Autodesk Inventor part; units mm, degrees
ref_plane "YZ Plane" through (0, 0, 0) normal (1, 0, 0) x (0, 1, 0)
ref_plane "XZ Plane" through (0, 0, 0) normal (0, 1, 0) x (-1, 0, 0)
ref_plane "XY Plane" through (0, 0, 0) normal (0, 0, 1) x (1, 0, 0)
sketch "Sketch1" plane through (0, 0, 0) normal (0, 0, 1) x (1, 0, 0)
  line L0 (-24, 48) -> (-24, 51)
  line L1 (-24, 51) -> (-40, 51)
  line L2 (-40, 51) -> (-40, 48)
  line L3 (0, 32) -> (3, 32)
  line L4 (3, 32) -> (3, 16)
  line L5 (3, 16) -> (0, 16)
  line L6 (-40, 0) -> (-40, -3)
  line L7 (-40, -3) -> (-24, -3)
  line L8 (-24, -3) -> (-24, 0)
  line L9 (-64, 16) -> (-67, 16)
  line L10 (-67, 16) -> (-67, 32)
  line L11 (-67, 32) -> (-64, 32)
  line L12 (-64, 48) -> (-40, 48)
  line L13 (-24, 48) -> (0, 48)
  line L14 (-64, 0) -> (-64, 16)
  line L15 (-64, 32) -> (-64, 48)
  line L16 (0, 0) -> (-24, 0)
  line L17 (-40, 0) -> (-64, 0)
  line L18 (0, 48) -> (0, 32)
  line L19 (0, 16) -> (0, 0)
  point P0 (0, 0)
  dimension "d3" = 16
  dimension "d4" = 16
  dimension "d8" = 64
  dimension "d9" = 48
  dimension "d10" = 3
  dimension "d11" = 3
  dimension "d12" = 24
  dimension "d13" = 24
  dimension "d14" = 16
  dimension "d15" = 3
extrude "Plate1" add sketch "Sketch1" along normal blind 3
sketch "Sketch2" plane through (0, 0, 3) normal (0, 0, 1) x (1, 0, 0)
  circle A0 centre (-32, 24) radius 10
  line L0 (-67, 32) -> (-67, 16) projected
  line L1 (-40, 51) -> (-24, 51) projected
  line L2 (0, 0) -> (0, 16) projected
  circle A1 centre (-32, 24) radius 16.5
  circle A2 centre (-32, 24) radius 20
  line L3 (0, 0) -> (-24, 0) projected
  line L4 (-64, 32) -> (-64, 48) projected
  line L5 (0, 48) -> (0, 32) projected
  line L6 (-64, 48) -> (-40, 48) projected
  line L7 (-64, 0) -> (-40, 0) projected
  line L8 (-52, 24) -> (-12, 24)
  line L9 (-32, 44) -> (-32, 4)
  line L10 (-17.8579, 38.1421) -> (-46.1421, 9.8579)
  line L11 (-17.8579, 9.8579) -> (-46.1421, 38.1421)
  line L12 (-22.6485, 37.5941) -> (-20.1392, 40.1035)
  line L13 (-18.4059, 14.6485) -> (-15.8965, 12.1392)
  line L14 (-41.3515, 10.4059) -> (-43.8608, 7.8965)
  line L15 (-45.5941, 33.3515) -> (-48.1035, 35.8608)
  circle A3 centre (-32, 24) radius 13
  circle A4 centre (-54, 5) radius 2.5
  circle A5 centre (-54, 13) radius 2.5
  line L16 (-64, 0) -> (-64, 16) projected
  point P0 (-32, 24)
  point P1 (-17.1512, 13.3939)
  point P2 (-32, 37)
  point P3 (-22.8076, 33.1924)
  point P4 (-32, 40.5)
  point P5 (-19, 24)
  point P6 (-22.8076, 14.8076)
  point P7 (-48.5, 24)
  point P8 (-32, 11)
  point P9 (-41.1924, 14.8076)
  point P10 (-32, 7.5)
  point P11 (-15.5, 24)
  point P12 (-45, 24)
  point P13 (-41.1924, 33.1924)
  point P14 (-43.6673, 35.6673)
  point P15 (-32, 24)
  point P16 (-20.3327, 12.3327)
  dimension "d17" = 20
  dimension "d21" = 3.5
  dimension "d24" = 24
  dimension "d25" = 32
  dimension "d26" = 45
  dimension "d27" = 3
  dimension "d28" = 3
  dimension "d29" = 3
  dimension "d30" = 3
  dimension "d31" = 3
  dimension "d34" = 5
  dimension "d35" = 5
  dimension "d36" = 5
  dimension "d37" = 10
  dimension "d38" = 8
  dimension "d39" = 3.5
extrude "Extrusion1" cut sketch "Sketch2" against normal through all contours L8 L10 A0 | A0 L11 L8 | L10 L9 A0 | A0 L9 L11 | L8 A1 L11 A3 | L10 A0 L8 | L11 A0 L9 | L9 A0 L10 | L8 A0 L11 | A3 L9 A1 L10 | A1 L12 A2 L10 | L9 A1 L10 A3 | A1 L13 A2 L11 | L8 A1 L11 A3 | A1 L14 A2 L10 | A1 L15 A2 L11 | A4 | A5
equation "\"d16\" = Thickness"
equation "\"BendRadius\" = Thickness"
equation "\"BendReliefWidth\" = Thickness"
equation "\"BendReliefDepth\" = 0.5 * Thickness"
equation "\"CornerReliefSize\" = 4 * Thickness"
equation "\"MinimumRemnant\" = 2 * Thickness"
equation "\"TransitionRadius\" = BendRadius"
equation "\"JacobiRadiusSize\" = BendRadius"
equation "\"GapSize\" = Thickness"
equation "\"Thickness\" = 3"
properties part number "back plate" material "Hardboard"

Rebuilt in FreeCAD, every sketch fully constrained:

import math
import FreeCAD as App
import Part
import Sketcher
from FreeCAD import Vector
Q = App.Units.Quantity


def add_polygon(sketch, points):
    """Adds a closed chain of lines whose ends are joined by coincident constraints."""
    first, n = sketch.GeometryCount, len(points)
    for a, b in zip(points, points[1:] + points[:1]):
        sketch.addGeometry(Part.LineSegment(App.Vector(*a, 0), App.Vector(*b, 0)), False)
    for i in range(n):
        sketch.addConstraint(Sketcher.Constraint("Coincident", first + i, 2, first + (i + 1) % n, 1))

doc = App.newDocument("Part")
body = doc.addObject("PartDesign::Body", "Body")

sketch1 = doc.addObject("Sketcher::SketchObject", "Sketch")
body.addObject(sketch1)
sketch1.AttachmentSupport = (doc.XY_Plane, [""])
sketch1.MapMode = "FlatFace"
add_polygon(sketch1, [(0, 48), (-24, 48), (-24, 51), (-40, 51), (-40, 48), (-64, 48), (-64, 32), (-67, 32), (-67, 16), (-64, 16), (-64, 0), (-40, 0), (-40, -3), (-24, -3), (-24, 0), (0, 0), (0, 16), (3, 16), (3, 32), (0, 32)])
sketch1.addConstraint([
    Sketcher.Constraint("Horizontal", 0),
    Sketcher.Constraint("Vertical", 1),
    Sketcher.Constraint("Horizontal", 2),
    Sketcher.Constraint("Vertical", 3),
    Sketcher.Constraint("Horizontal", 4),
    Sketcher.Constraint("Vertical", 5),
    Sketcher.Constraint("Horizontal", 6),
    Sketcher.Constraint("Vertical", 7),
    Sketcher.Constraint("Horizontal", 8),
    Sketcher.Constraint("Vertical", 9),
    Sketcher.Constraint("Horizontal", 10),
    Sketcher.Constraint("Vertical", 11),
    Sketcher.Constraint("Horizontal", 12),
    Sketcher.Constraint("Vertical", 13),
    Sketcher.Constraint("Horizontal", 14),
    Sketcher.Constraint("Vertical", 15),
    Sketcher.Constraint("Horizontal", 16),
    Sketcher.Constraint("Vertical", 17),
    Sketcher.Constraint("Horizontal", 18),
    Sketcher.Constraint("Vertical", 19),
    Sketcher.Constraint("Coincident", 14, 2, -1, 1),
    Sketcher.Constraint("PointOnObject", 9, 2, -1),
    Sketcher.Constraint("PointOnObject", 18, 2, -2),
    Sketcher.Constraint("Horizontal", 0, 2, 3, 2),
    Sketcher.Constraint("Horizontal", 8, 2, 15, 2),
    Sketcher.Constraint("Horizontal", 6, 2, 17, 2),
    Sketcher.Constraint("Vertical", 5, 2, 8, 2),
    Sketcher.Constraint("Vertical", 3, 2, 10, 2),
    Sketcher.Constraint("Vertical", 1, 2, 12, 2),
    Sketcher.Constraint("Equal", 0, 4),
    Sketcher.Constraint("Equal", 8, 16),
    Sketcher.Constraint("Equal", 18, 1),
    Sketcher.Constraint("Equal", 12, 5),
    Sketcher.Constraint("Equal", 5, 7),
    Sketcher.Constraint("Equal", 7, 9),
    Sketcher.Constraint("Equal", 3, 11),
    Sketcher.Constraint("DistanceX", 0, 2, 0, 1, Q("24 mm")),
    Sketcher.Constraint("DistanceX", 2, 2, 2, 1, Q("16 mm")),
    Sketcher.Constraint("DistanceX", 6, 2, 6, 1, Q("3 mm")),
])
pad1 = doc.addObject("PartDesign::Pad", "Pad")
body.addObject(pad1)
pad1.Profile = sketch1
pad1.Length = 3

sketch2 = doc.addObject("Sketcher::SketchObject", "Sketch001")
body.addObject(sketch2)
sketch2.AttachmentSupport = (doc.XY_Plane, [""])
sketch2.MapMode = "FlatFace"
sketch2.AttachmentOffset = App.Placement(Vector(0, 0, 3), App.Rotation())
sketch2.addGeometry([
    Part.Circle(Vector(-32, 24, 0), Vector(0, 0, 1), 10),
    Part.LineSegment(Vector(-15.5, 24, 0), Vector(-19, 24, 0)),
    Part.ArcOfCircle(Part.Circle(Vector(-32, 24, 0), Vector(0, 0, 1), 13), math.radians(-45), math.radians(0)),
    Part.LineSegment(Vector(-22.8, 14.8, 0), Vector(-17.9, 9.9, 0)),
    Part.ArcOfCircle(Part.Circle(Vector(-32, 24, 0), Vector(0, 0, 1), 20), math.radians(-45), math.radians(-36.37)),
    Part.LineSegment(Vector(-15.9, 12.1, 0), Vector(-18.4, 14.6, 0)),
    Part.ArcOfCircle(Part.Circle(Vector(-32, 24, 0), Vector(0, 0, 1), 16.5), math.radians(-35), math.radians(0)),
    Part.ArcOfCircle(Part.Circle(Vector(-32, 24, 0), Vector(0, 0, 1), 13), math.radians(45), math.radians(90)),
    Part.LineSegment(Vector(-22.8, 33.2, 0), Vector(-17.9, 38.1, 0)),
    Part.ArcOfCircle(Part.Circle(Vector(-32, 24, 0), Vector(0, 0, 1), 20), math.radians(45), math.radians(53.63)),
    Part.LineSegment(Vector(-20.1, 40.1, 0), Vector(-22.6, 37.6, 0)),
    Part.ArcOfCircle(Part.Circle(Vector(-32, 24, 0), Vector(0, 0, 1), 16.5), math.radians(55), math.radians(90)),
    Part.LineSegment(Vector(-32, 40.5, 0), Vector(-32, 37, 0)),
    Part.LineSegment(Vector(-32, 7.5, 0), Vector(-32, 11, 0)),
    Part.ArcOfCircle(Part.Circle(Vector(-32, 24, 0), Vector(0, 0, 1), 13), math.radians(-135), math.radians(-90)),
    Part.LineSegment(Vector(-41.2, 14.8, 0), Vector(-46.1, 9.9, 0)),
    Part.ArcOfCircle(Part.Circle(Vector(-32, 24, 0), Vector(0, 0, 1), 20), math.radians(-135), math.radians(-126.37)),
    Part.LineSegment(Vector(-43.9, 7.9, 0), Vector(-41.4, 10.4, 0)),
    Part.ArcOfCircle(Part.Circle(Vector(-32, 24, 0), Vector(0, 0, 1), 16.5), math.radians(-125), math.radians(-90)),
    Part.LineSegment(Vector(-48.5, 24, 0), Vector(-45, 24, 0)),
    Part.ArcOfCircle(Part.Circle(Vector(-32, 24, 0), Vector(0, 0, 1), 13), math.radians(135), math.radians(180)),
    Part.LineSegment(Vector(-41.2, 33.2, 0), Vector(-46.1, 38.1, 0)),
    Part.ArcOfCircle(Part.Circle(Vector(-32, 24, 0), Vector(0, 0, 1), 20), math.radians(135), math.radians(143.63)),
    Part.LineSegment(Vector(-48.1, 35.9, 0), Vector(-45.6, 33.4, 0)),
    Part.ArcOfCircle(Part.Circle(Vector(-32, 24, 0), Vector(0, 0, 1), 16.5), math.radians(145), math.radians(180)),
    Part.Circle(Vector(-54, 5, 0), Vector(0, 0, 1), 2.5),
    Part.Circle(Vector(-54, 13, 0), Vector(0, 0, 1), 2.5),
], False)
sketch2.addConstraint([
    Sketcher.Constraint("Coincident", 1, 2, 2, 2),
    Sketcher.Constraint("Coincident", 2, 1, 3, 1),
    Sketcher.Constraint("Coincident", 3, 2, 4, 1),
    Sketcher.Constraint("Coincident", 4, 2, 5, 1),
    Sketcher.Constraint("Coincident", 5, 2, 6, 1),
    Sketcher.Constraint("Coincident", 6, 2, 1, 1),
    Sketcher.Constraint("Coincident", 7, 1, 8, 1),
    Sketcher.Constraint("Coincident", 8, 2, 9, 1),
    Sketcher.Constraint("Coincident", 9, 2, 10, 1),
    Sketcher.Constraint("Coincident", 10, 2, 11, 1),
    Sketcher.Constraint("Coincident", 11, 2, 12, 1),
    Sketcher.Constraint("Coincident", 12, 2, 7, 2),
    Sketcher.Constraint("Coincident", 13, 2, 14, 2),
    Sketcher.Constraint("Coincident", 14, 1, 15, 1),
    Sketcher.Constraint("Coincident", 15, 2, 16, 1),
    Sketcher.Constraint("Coincident", 16, 2, 17, 1),
    Sketcher.Constraint("Coincident", 17, 2, 18, 1),
    Sketcher.Constraint("Coincident", 18, 2, 13, 1),
    Sketcher.Constraint("Coincident", 19, 2, 20, 2),
    Sketcher.Constraint("Coincident", 20, 1, 21, 1),
    Sketcher.Constraint("Coincident", 21, 2, 22, 1),
    Sketcher.Constraint("Coincident", 22, 2, 23, 1),
    Sketcher.Constraint("Coincident", 23, 2, 24, 1),
    Sketcher.Constraint("Coincident", 24, 2, 19, 1),
    Sketcher.Constraint("Horizontal", 1),
    Sketcher.Constraint("Vertical", 12),
    Sketcher.Constraint("Vertical", 13),
    Sketcher.Constraint("Horizontal", 19),
    Sketcher.Constraint("Coincident", 2, 3, 0, 3),
    Sketcher.Constraint("Coincident", 4, 3, 0, 3),
    Sketcher.Constraint("Coincident", 6, 3, 0, 3),
    Sketcher.Constraint("Coincident", 7, 3, 0, 3),
    Sketcher.Constraint("Coincident", 9, 3, 0, 3),
    Sketcher.Constraint("Coincident", 11, 3, 0, 3),
    Sketcher.Constraint("Coincident", 14, 3, 0, 3),
    Sketcher.Constraint("Coincident", 16, 3, 0, 3),
    Sketcher.Constraint("Coincident", 18, 3, 0, 3),
    Sketcher.Constraint("Coincident", 20, 3, 0, 3),
    Sketcher.Constraint("Coincident", 22, 3, 0, 3),
    Sketcher.Constraint("Coincident", 24, 3, 0, 3),
    Sketcher.Constraint("Equal", 2, 7),
    Sketcher.Constraint("Equal", 4, 9),
    Sketcher.Constraint("Equal", 6, 11),
    Sketcher.Constraint("Equal", 7, 14),
    Sketcher.Constraint("Equal", 9, 16),
    Sketcher.Constraint("Equal", 11, 18),
    Sketcher.Constraint("Equal", 14, 20),
    Sketcher.Constraint("Equal", 16, 22),
    Sketcher.Constraint("Equal", 18, 24),
    Sketcher.Constraint("Equal", 25, 26),
    Sketcher.Constraint("Parallel", 3, 5),
    Sketcher.Constraint("Perpendicular", 5, 8),
    Sketcher.Constraint("Parallel", 8, 10),
    Sketcher.Constraint("Parallel", 10, 15),
    Sketcher.Constraint("Parallel", 15, 17),
    Sketcher.Constraint("Perpendicular", 17, 21),
    Sketcher.Constraint("Parallel", 21, 23),
    Sketcher.Constraint("Horizontal", 24, 3, 1, 2),
    Sketcher.Constraint("Horizontal", 2, 1, 14, 1),
    Sketcher.Constraint("Horizontal", 3, 2, 15, 2),
    Sketcher.Constraint("Horizontal", 6, 2, 19, 2),
    Sketcher.Constraint("Horizontal", 7, 1, 20, 1),
    Sketcher.Constraint("Vertical", 25, 3, 26, 3),
    Sketcher.Constraint("Vertical", 2, 1, 7, 1),
    Sketcher.Constraint("Vertical", 24, 3, 11, 2),
    Sketcher.Constraint("Vertical", 12, 2, 13, 2),
    Sketcher.Constraint("Equal", 5, 10),
    Sketcher.Constraint("Equal", 10, 17),
    Sketcher.Constraint("Equal", 17, 23),
    Sketcher.Constraint("Diameter", 0, Q("20 mm")),
    Sketcher.Constraint("Diameter", 25, Q("5 mm")),
    Sketcher.Constraint("Radius", 4, Q("20 mm")),
    Sketcher.Constraint("DistanceX", 1, 2, 1, 1, Q("3.5 mm")),
    Sketcher.Constraint("DistanceX", 0, 3, -1, 1, Q("32 mm")),
    Sketcher.Constraint("DistanceY", -1, 1, 0, 3, Q("24 mm")),
    Sketcher.Constraint("DistanceY", -1, 1, 25, 3, Q("5 mm")),
    Sketcher.Constraint("DistanceX", 19, 2, -1, 1, Q("45 mm")),
    Sketcher.Constraint("DistanceY", 25, 3, 26, 3, Q("8 mm")),
    Sketcher.Constraint("DistanceX", 25, 3, -1, 1, Q("54 mm")),
    Sketcher.Constraint("DistanceX", 3, 2, -1, 1, Q("17.858 mm")),
    Sketcher.Constraint("DistanceX", 5, 2, -1, 1, Q("18.406 mm")),
])
pocket1 = doc.addObject("PartDesign::Pocket", "Pocket")
body.addObject(pocket1)
pocket1.Profile = sketch2
pocket1.Type = "ThroughAll"

doc.recompute()
